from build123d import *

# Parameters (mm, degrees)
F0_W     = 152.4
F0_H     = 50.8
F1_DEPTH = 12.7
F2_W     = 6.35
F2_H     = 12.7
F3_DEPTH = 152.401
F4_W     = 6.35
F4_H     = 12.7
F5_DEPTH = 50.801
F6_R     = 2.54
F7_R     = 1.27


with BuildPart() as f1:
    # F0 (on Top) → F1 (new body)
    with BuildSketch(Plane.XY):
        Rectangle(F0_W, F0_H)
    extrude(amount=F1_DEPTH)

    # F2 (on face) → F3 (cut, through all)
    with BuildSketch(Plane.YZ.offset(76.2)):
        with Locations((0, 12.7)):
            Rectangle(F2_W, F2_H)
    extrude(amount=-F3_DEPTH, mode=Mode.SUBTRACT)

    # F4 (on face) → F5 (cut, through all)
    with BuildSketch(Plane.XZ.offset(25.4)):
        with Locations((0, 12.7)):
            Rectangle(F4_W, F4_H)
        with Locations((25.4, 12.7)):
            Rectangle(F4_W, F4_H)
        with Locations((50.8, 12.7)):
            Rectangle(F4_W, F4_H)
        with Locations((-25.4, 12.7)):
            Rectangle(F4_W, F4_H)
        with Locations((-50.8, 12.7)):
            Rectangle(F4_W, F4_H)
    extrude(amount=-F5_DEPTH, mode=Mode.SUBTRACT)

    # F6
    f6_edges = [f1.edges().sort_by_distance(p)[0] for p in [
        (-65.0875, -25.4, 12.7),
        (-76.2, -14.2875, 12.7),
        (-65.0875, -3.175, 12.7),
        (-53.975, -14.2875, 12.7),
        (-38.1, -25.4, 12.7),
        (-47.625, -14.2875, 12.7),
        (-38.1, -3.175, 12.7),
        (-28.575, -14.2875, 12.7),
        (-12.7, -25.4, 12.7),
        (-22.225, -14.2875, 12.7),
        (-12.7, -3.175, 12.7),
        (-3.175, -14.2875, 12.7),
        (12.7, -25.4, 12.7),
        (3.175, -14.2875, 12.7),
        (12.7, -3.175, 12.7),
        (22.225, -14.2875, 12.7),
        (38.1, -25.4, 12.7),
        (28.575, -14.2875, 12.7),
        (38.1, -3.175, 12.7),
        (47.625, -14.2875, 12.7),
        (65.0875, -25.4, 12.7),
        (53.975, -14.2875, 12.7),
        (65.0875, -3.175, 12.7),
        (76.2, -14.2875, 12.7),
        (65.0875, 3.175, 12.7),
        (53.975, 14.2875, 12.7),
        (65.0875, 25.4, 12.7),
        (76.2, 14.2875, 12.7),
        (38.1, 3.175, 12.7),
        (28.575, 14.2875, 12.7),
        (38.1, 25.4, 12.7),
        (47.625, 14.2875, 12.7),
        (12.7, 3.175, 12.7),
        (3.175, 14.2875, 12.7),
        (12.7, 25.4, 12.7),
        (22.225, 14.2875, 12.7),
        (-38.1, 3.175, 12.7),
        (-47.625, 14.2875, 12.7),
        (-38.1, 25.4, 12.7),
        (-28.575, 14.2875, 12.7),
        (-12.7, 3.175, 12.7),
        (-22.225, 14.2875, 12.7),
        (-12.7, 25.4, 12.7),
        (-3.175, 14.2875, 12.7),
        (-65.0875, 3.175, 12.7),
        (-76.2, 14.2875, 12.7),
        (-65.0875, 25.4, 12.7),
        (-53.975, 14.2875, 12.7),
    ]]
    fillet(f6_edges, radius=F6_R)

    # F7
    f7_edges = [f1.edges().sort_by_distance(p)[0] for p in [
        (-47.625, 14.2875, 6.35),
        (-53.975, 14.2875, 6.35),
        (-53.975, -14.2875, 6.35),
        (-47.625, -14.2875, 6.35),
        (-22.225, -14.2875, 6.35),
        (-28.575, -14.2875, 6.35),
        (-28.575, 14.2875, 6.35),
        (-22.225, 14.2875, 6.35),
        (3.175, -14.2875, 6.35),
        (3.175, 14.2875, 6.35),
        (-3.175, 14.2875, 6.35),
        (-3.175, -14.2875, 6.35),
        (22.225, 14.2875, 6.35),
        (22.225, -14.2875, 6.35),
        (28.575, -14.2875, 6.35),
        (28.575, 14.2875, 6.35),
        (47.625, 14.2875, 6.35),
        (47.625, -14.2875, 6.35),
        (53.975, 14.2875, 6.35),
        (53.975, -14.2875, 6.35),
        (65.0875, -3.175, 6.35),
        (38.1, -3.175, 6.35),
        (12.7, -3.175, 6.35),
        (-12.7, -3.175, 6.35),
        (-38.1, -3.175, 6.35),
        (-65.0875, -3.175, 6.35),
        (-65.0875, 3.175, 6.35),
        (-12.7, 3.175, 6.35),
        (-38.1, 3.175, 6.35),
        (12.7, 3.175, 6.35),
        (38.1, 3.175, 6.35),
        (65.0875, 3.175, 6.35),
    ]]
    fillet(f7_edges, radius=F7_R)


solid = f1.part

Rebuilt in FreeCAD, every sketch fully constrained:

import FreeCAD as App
import Part
import Sketcher

V = App.Vector
Q = App.Units.Quantity


def edges_at(feature, points):
    """Names of the edges that pass closest to the given points."""
    edges = feature.Shape.Edges
    near = lambda p: min(range(len(edges)), key=lambda i: edges[i].distToShape(Part.Vertex(*p))[0])
    return sorted({f"Edge{near(p) + 1}" for p in points})

doc = App.newDocument("Part")
body = doc.addObject("PartDesign::Body", "Body")

sketch1 = body.newObject("Sketcher::SketchObject", "Sketch")
sketch1.AttachmentSupport = (doc.getObject("XY_Plane"), [""])
sketch1.MapMode = "FlatFace"
sketch1.addGeometry(Part.LineSegment(V(-76, 25, 0), V(-76, -25, 0)), False)
sketch1.addGeometry(Part.LineSegment(V(-76, -25, 0), V(76, -25, 0)), False)
sketch1.addGeometry(Part.LineSegment(V(76, -25, 0), V(76, 25, 0)), False)
sketch1.addGeometry(Part.LineSegment(V(76, 25, 0), V(-76, 25, 0)), False)
sketch1.addConstraint(Sketcher.Constraint("Coincident", 0, 2, 1, 1))
sketch1.addConstraint(Sketcher.Constraint("Coincident", 1, 2, 2, 1))
sketch1.addConstraint(Sketcher.Constraint("Coincident", 2, 2, 3, 1))
sketch1.addConstraint(Sketcher.Constraint("Coincident", 3, 2, 0, 1))
sketch1.addConstraint(Sketcher.Constraint("Vertical", 0))
sketch1.addConstraint(Sketcher.Constraint("Horizontal", 1))
sketch1.addConstraint(Sketcher.Constraint("Vertical", 2))
sketch1.addConstraint(Sketcher.Constraint("Horizontal", 3))
sketch1.addConstraint(Sketcher.Constraint("Symmetric", 0, 2, 2, 2, -1, 1))
sketch1.addConstraint(Sketcher.Constraint("DistanceX", 1, 1, 1, 2, Q("6 in")))
sketch1.addConstraint(Sketcher.Constraint("DistanceY", 0, 2, 0, 1, Q("2 in")))
pad1 = body.newObject("PartDesign::Pad", "Pad")
pad1.Profile = sketch1
pad1.Length = Q("0.5 in")

sketch2 = body.newObject("Sketcher::SketchObject", "Sketch001")
sketch2.AttachmentSupport = (doc.getObject("YZ_Plane"), [""])
sketch2.MapMode = "FlatFace"
sketch2.AttachmentOffset = App.Placement(V(0, 0, 3 * 25.4), App.Rotation())
sketch2.addGeometry(Part.LineSegment(V(-3, 19, 0), V(-3, 6, 0)), False)
sketch2.addGeometry(Part.LineSegment(V(-3, 6, 0), V(3, 6, 0)), False)
sketch2.addGeometry(Part.LineSegment(V(3, 6, 0), V(3, 19, 0)), False)
sketch2.addGeometry(Part.LineSegment(V(3, 19, 0), V(-3, 19, 0)), False)
sketch2.addConstraint(Sketcher.Constraint("Coincident", 0, 2, 1, 1))
sketch2.addConstraint(Sketcher.Constraint("Coincident", 1, 2, 2, 1))
sketch2.addConstraint(Sketcher.Constraint("Coincident", 2, 2, 3, 1))
sketch2.addConstraint(Sketcher.Constraint("Coincident", 3, 2, 0, 1))
sketch2.addConstraint(Sketcher.Constraint("Vertical", 0))
sketch2.addConstraint(Sketcher.Constraint("Horizontal", 1))
sketch2.addConstraint(Sketcher.Constraint("Vertical", 2))
sketch2.addConstraint(Sketcher.Constraint("Horizontal", 3))
sketch2.addConstraint(Sketcher.Constraint("DistanceY", 0, 2, 0, 1, Q("0.5 in")))
sketch2.addConstraint(Sketcher.Constraint("DistanceX", 1, 1, 1, 2, Q("0.25 in")))
sketch2.addConstraint(Sketcher.Constraint("DistanceY", -1, 1, 0, 2, Q("0.25 in")))
sketch2.addConstraint(Sketcher.Constraint("DistanceX", 0, 2, -1, 1, Q("0.125 in")))
pocket1 = body.newObject("PartDesign::Pocket", "Pocket")
pocket1.Profile = sketch2
pocket1.Type = "ThroughAll"

sketch3 = body.newObject("Sketcher::SketchObject", "Sketch002")
sketch3.AttachmentSupport = (doc.getObject("XZ_Plane"), [""])
sketch3.MapMode = "FlatFace"
sketch3.AttachmentOffset = App.Placement(V(0, 0, 1 * 25.4), App.Rotation())
sketch3.addGeometry(Part.LineSegment(V(-3, 19, 0), V(-3, 6, 0)), False)
sketch3.addGeometry(Part.LineSegment(V(-3, 6, 0), V(3, 6, 0)), False)
sketch3.addGeometry(Part.LineSegment(V(3, 6, 0), V(3, 19, 0)), False)
sketch3.addGeometry(Part.LineSegment(V(3, 19, 0), V(-3, 19, 0)), False)
sketch3.addGeometry(Part.LineSegment(V(22, 19, 0), V(22, 6, 0)), False)
sketch3.addGeometry(Part.LineSegment(V(22, 6, 0), V(29, 6, 0)), False)
sketch3.addGeometry(Part.LineSegment(V(29, 6, 0), V(29, 19, 0)), False)
sketch3.addGeometry(Part.LineSegment(V(29, 19, 0), V(22, 19, 0)), False)
sketch3.addGeometry(Part.LineSegment(V(48, 19, 0), V(48, 6, 0)), False)
sketch3.addGeometry(Part.LineSegment(V(48, 6, 0), V(54, 6, 0)), False)
sketch3.addGeometry(Part.LineSegment(V(54, 6, 0), V(54, 19, 0)), False)
sketch3.addGeometry(Part.LineSegment(V(54, 19, 0), V(48, 19, 0)), False)
sketch3.addGeometry(Part.LineSegment(V(-29, 19, 0), V(-29, 6, 0)), False)
sketch3.addGeometry(Part.LineSegment(V(-29, 6, 0), V(-22, 6, 0)), False)
sketch3.addGeometry(Part.LineSegment(V(-22, 6, 0), V(-22, 19, 0)), False)
sketch3.addGeometry(Part.LineSegment(V(-22, 19, 0), V(-29, 19, 0)), False)
sketch3.addGeometry(Part.LineSegment(V(-54, 19, 0), V(-54, 6, 0)), False)
sketch3.addGeometry(Part.LineSegment(V(-54, 6, 0), V(-48, 6, 0)), False)
sketch3.addGeometry(Part.LineSegment(V(-48, 6, 0), V(-48, 19, 0)), False)
sketch3.addGeometry(Part.LineSegment(V(-48, 19, 0), V(-54, 19, 0)), False)
sketch3.addConstraint(Sketcher.Constraint("Coincident", 0, 2, 1, 1))
sketch3.addConstraint(Sketcher.Constraint("Coincident", 1, 2, 2, 1))
sketch3.addConstraint(Sketcher.Constraint("Coincident", 2, 2, 3, 1))
sketch3.addConstraint(Sketcher.Constraint("Coincident", 3, 2, 0, 1))
sketch3.addConstraint(Sketcher.Constraint("Coincident", 4, 2, 5, 1))
sketch3.addConstraint(Sketcher.Constraint("Coincident", 5, 2, 6, 1))
sketch3.addConstraint(Sketcher.Constraint("Coincident", 6, 2, 7, 1))
sketch3.addConstraint(Sketcher.Constraint("Coincident", 7, 2, 4, 1))
sketch3.addConstraint(Sketcher.Constraint("Coincident", 8, 2, 9, 1))
sketch3.addConstraint(Sketcher.Constraint("Coincident", 9, 2, 10, 1))
sketch3.addConstraint(Sketcher.Constraint("Coincident", 10, 2, 11, 1))
sketch3.addConstraint(Sketcher.Constraint("Coincident", 11, 2, 8, 1))
sketch3.addConstraint(Sketcher.Constraint("Coincident", 12, 2, 13, 1))
sketch3.addConstraint(Sketcher.Constraint("Coincident", 13, 2, 14, 1))
sketch3.addConstraint(Sketcher.Constraint("Coincident", 14, 2, 15, 1))
sketch3.addConstraint(Sketcher.Constraint("Coincident", 15, 2, 12, 1))
sketch3.addConstraint(Sketcher.Constraint("Coincident", 16, 2, 17, 1))
sketch3.addConstraint(Sketcher.Constraint("Coincident", 17, 2, 18, 1))
sketch3.addConstraint(Sketcher.Constraint("Coincident", 18, 2, 19, 1))
sketch3.addConstraint(Sketcher.Constraint("Coincident", 19, 2, 16, 1))
sketch3.addConstraint(Sketcher.Constraint("Vertical", 0))
sketch3.addConstraint(Sketcher.Constraint("Horizontal", 1))
sketch3.addConstraint(Sketcher.Constraint("Vertical", 2))
sketch3.addConstraint(Sketcher.Constraint("Horizontal", 3))
sketch3.addConstraint(Sketcher.Constraint("Vertical", 4))
sketch3.addConstraint(Sketcher.Constraint("Horizontal", 5))
sketch3.addConstraint(Sketcher.Constraint("Vertical", 6))
sketch3.addConstraint(Sketcher.Constraint("Horizontal", 7))
sketch3.addConstraint(Sketcher.Constraint("Vertical", 8))
sketch3.addConstraint(Sketcher.Constraint("Horizontal", 9))
sketch3.addConstraint(Sketcher.Constraint("Vertical", 10))
sketch3.addConstraint(Sketcher.Constraint("Horizontal", 11))
sketch3.addConstraint(Sketcher.Constraint("Vertical", 12))
sketch3.addConstraint(Sketcher.Constraint("Horizontal", 13))
sketch3.addConstraint(Sketcher.Constraint("Vertical", 14))
sketch3.addConstraint(Sketcher.Constraint("Horizontal", 15))
sketch3.addConstraint(Sketcher.Constraint("Vertical", 16))
sketch3.addConstraint(Sketcher.Constraint("Horizontal", 17))
sketch3.addConstraint(Sketcher.Constraint("Vertical", 18))
sketch3.addConstraint(Sketcher.Constraint("Horizontal", 19))
sketch3.addConstraint(Sketcher.Constraint("Symmetric", 5, 2, 12, 2, -2))
sketch3.addConstraint(Sketcher.Constraint("Symmetric", 7, 2, 14, 2, -2))
sketch3.addConstraint(Sketcher.Constraint("Symmetric", 9, 2, 16, 2, -2))
sketch3.addConstraint(Sketcher.Constraint("Symmetric", 11, 2, 18, 2, -2))
sketch3.addConstraint(Sketcher.Constraint("Horizontal", 1, 2, 4, 2))
sketch3.addConstraint(Sketcher.Constraint("Horizontal", 3, 2, 6, 2))
sketch3.addConstraint(Sketcher.Constraint("Horizontal", 5, 2, 8, 2))
sketch3.addConstraint(Sketcher.Constraint("Horizontal", 7, 2, 10, 2))
sketch3.addConstraint(Sketcher.Constraint("Equal", 3, 5))
sketch3.addConstraint(Sketcher.Constraint("Equal", 7, 9))
sketch3.addConstraint(Sketcher.Constraint("DistanceY", 0, 2, 0, 1, Q("0.5 in")))
sketch3.addConstraint(Sketcher.Constraint("DistanceX", 0, 2, 4, 2, Q("1 in")))
sketch3.addConstraint(Sketcher.Constraint("DistanceX", 4, 2, 8, 2, Q("1 in")))
sketch3.addConstraint(Sketcher.Constraint("DistanceX", 12, 2, 0, 2, Q("1 in")))
sketch3.addConstraint(Sketcher.Constraint("DistanceX", 1, 1, 1, 2, Q("0.25 in")))
sketch3.addConstraint(Sketcher.Constraint("DistanceY", -1, 1, 0, 2, Q("0.25 in")))
pocket2 = body.newObject("PartDesign::Pocket", "Pocket001")
pocket2.Profile = sketch3
pocket2.Type = "ThroughAll"
doc.recompute()

fillet = body.newObject("PartDesign::Fillet", "Fillet")
fillet.Base = (pocket2, edges_at(pocket2, [
    (-65.088, -25.4, 12.7),
    (-76.2, -14.287, 12.7),
    (-65.088, -3.175, 12.7),
    (-53.975, -14.287, 12.7),
    (-38.1, -25.4, 12.7),
    (-47.625, -14.287, 12.7),
    (-38.1, -3.175, 12.7),
    (-28.575, -14.287, 12.7),
    (-12.7, -25.4, 12.7),
    (-22.225, -14.287, 12.7),
    (-12.7, -3.175, 12.7),
    (-3.175, -14.287, 12.7),
    (12.7, -25.4, 12.7),
    (3.175, -14.287, 12.7),
    (12.7, -3.175, 12.7),
    (22.225, -14.287, 12.7),
    (38.1, -25.4, 12.7),
    (28.575, -14.287, 12.7),
    (38.1, -3.175, 12.7),
    (47.625, -14.287, 12.7),
    (65.088, -25.4, 12.7),
    (53.975, -14.287, 12.7),
    (65.088, -3.175, 12.7),
    (76.2, -14.287, 12.7),
    (65.088, 3.175, 12.7),
    (53.975, 14.287, 12.7),
    (65.088, 25.4, 12.7),
    (76.2, 14.287, 12.7),
    (38.1, 3.175, 12.7),
    (28.575, 14.287, 12.7),
    (38.1, 25.4, 12.7),
    (47.625, 14.287, 12.7),
    (12.7, 3.175, 12.7),
    (3.175, 14.287, 12.7),
    (12.7, 25.4, 12.7),
    (22.225, 14.287, 12.7),
    (-38.1, 3.175, 12.7),
    (-47.625, 14.287, 12.7),
    (-38.1, 25.4, 12.7),
    (-28.575, 14.287, 12.7),
    (-12.7, 3.175, 12.7),
    (-22.225, 14.287, 12.7),
    (-12.7, 25.4, 12.7),
    (-3.175, 14.287, 12.7),
    (-65.088, 3.175, 12.7),
    (-76.2, 14.287, 12.7),
    (-65.088, 25.4, 12.7),
    (-53.975, 14.287, 12.7),
]))
fillet.Radius = Q("0.1 in")
doc.recompute()

fillet2 = body.newObject("PartDesign::Fillet", "Fillet001")
fillet2.Base = (fillet, edges_at(fillet, [
    (-47.625, 14.287, 6.35),
    (-53.975, 14.287, 6.35),
    (-53.975, -14.287, 6.35),
    (-47.625, -14.287, 6.35),
    (-22.225, -14.287, 6.35),
    (-28.575, -14.287, 6.35),
    (-28.575, 14.287, 6.35),
    (-22.225, 14.287, 6.35),
    (3.175, -14.287, 6.35),
    (3.175, 14.287, 6.35),
    (-3.175, 14.287, 6.35),
    (-3.175, -14.287, 6.35),
    (22.225, 14.287, 6.35),
    (22.225, -14.287, 6.35),
    (28.575, -14.287, 6.35),
    (28.575, 14.287, 6.35),
    (47.625, 14.287, 6.35),
    (47.625, -14.287, 6.35),
    (53.975, 14.287, 6.35),
    (53.975, -14.287, 6.35),
    (65.088, -3.175, 6.35),
    (38.1, -3.175, 6.35),
    (12.7, -3.175, 6.35),
    (-12.7, -3.175, 6.35),
    (-38.1, -3.175, 6.35),
    (-65.088, -3.175, 6.35),
    (-65.088, 3.175, 6.35),
    (-12.7, 3.175, 6.35),
    (-38.1, 3.175, 6.35),
    (12.7, 3.175, 6.35),
    (38.1, 3.175, 6.35),
    (65.088, 3.175, 6.35),
]))
fillet2.Radius = Q("0.05 in")

doc.recompute()
